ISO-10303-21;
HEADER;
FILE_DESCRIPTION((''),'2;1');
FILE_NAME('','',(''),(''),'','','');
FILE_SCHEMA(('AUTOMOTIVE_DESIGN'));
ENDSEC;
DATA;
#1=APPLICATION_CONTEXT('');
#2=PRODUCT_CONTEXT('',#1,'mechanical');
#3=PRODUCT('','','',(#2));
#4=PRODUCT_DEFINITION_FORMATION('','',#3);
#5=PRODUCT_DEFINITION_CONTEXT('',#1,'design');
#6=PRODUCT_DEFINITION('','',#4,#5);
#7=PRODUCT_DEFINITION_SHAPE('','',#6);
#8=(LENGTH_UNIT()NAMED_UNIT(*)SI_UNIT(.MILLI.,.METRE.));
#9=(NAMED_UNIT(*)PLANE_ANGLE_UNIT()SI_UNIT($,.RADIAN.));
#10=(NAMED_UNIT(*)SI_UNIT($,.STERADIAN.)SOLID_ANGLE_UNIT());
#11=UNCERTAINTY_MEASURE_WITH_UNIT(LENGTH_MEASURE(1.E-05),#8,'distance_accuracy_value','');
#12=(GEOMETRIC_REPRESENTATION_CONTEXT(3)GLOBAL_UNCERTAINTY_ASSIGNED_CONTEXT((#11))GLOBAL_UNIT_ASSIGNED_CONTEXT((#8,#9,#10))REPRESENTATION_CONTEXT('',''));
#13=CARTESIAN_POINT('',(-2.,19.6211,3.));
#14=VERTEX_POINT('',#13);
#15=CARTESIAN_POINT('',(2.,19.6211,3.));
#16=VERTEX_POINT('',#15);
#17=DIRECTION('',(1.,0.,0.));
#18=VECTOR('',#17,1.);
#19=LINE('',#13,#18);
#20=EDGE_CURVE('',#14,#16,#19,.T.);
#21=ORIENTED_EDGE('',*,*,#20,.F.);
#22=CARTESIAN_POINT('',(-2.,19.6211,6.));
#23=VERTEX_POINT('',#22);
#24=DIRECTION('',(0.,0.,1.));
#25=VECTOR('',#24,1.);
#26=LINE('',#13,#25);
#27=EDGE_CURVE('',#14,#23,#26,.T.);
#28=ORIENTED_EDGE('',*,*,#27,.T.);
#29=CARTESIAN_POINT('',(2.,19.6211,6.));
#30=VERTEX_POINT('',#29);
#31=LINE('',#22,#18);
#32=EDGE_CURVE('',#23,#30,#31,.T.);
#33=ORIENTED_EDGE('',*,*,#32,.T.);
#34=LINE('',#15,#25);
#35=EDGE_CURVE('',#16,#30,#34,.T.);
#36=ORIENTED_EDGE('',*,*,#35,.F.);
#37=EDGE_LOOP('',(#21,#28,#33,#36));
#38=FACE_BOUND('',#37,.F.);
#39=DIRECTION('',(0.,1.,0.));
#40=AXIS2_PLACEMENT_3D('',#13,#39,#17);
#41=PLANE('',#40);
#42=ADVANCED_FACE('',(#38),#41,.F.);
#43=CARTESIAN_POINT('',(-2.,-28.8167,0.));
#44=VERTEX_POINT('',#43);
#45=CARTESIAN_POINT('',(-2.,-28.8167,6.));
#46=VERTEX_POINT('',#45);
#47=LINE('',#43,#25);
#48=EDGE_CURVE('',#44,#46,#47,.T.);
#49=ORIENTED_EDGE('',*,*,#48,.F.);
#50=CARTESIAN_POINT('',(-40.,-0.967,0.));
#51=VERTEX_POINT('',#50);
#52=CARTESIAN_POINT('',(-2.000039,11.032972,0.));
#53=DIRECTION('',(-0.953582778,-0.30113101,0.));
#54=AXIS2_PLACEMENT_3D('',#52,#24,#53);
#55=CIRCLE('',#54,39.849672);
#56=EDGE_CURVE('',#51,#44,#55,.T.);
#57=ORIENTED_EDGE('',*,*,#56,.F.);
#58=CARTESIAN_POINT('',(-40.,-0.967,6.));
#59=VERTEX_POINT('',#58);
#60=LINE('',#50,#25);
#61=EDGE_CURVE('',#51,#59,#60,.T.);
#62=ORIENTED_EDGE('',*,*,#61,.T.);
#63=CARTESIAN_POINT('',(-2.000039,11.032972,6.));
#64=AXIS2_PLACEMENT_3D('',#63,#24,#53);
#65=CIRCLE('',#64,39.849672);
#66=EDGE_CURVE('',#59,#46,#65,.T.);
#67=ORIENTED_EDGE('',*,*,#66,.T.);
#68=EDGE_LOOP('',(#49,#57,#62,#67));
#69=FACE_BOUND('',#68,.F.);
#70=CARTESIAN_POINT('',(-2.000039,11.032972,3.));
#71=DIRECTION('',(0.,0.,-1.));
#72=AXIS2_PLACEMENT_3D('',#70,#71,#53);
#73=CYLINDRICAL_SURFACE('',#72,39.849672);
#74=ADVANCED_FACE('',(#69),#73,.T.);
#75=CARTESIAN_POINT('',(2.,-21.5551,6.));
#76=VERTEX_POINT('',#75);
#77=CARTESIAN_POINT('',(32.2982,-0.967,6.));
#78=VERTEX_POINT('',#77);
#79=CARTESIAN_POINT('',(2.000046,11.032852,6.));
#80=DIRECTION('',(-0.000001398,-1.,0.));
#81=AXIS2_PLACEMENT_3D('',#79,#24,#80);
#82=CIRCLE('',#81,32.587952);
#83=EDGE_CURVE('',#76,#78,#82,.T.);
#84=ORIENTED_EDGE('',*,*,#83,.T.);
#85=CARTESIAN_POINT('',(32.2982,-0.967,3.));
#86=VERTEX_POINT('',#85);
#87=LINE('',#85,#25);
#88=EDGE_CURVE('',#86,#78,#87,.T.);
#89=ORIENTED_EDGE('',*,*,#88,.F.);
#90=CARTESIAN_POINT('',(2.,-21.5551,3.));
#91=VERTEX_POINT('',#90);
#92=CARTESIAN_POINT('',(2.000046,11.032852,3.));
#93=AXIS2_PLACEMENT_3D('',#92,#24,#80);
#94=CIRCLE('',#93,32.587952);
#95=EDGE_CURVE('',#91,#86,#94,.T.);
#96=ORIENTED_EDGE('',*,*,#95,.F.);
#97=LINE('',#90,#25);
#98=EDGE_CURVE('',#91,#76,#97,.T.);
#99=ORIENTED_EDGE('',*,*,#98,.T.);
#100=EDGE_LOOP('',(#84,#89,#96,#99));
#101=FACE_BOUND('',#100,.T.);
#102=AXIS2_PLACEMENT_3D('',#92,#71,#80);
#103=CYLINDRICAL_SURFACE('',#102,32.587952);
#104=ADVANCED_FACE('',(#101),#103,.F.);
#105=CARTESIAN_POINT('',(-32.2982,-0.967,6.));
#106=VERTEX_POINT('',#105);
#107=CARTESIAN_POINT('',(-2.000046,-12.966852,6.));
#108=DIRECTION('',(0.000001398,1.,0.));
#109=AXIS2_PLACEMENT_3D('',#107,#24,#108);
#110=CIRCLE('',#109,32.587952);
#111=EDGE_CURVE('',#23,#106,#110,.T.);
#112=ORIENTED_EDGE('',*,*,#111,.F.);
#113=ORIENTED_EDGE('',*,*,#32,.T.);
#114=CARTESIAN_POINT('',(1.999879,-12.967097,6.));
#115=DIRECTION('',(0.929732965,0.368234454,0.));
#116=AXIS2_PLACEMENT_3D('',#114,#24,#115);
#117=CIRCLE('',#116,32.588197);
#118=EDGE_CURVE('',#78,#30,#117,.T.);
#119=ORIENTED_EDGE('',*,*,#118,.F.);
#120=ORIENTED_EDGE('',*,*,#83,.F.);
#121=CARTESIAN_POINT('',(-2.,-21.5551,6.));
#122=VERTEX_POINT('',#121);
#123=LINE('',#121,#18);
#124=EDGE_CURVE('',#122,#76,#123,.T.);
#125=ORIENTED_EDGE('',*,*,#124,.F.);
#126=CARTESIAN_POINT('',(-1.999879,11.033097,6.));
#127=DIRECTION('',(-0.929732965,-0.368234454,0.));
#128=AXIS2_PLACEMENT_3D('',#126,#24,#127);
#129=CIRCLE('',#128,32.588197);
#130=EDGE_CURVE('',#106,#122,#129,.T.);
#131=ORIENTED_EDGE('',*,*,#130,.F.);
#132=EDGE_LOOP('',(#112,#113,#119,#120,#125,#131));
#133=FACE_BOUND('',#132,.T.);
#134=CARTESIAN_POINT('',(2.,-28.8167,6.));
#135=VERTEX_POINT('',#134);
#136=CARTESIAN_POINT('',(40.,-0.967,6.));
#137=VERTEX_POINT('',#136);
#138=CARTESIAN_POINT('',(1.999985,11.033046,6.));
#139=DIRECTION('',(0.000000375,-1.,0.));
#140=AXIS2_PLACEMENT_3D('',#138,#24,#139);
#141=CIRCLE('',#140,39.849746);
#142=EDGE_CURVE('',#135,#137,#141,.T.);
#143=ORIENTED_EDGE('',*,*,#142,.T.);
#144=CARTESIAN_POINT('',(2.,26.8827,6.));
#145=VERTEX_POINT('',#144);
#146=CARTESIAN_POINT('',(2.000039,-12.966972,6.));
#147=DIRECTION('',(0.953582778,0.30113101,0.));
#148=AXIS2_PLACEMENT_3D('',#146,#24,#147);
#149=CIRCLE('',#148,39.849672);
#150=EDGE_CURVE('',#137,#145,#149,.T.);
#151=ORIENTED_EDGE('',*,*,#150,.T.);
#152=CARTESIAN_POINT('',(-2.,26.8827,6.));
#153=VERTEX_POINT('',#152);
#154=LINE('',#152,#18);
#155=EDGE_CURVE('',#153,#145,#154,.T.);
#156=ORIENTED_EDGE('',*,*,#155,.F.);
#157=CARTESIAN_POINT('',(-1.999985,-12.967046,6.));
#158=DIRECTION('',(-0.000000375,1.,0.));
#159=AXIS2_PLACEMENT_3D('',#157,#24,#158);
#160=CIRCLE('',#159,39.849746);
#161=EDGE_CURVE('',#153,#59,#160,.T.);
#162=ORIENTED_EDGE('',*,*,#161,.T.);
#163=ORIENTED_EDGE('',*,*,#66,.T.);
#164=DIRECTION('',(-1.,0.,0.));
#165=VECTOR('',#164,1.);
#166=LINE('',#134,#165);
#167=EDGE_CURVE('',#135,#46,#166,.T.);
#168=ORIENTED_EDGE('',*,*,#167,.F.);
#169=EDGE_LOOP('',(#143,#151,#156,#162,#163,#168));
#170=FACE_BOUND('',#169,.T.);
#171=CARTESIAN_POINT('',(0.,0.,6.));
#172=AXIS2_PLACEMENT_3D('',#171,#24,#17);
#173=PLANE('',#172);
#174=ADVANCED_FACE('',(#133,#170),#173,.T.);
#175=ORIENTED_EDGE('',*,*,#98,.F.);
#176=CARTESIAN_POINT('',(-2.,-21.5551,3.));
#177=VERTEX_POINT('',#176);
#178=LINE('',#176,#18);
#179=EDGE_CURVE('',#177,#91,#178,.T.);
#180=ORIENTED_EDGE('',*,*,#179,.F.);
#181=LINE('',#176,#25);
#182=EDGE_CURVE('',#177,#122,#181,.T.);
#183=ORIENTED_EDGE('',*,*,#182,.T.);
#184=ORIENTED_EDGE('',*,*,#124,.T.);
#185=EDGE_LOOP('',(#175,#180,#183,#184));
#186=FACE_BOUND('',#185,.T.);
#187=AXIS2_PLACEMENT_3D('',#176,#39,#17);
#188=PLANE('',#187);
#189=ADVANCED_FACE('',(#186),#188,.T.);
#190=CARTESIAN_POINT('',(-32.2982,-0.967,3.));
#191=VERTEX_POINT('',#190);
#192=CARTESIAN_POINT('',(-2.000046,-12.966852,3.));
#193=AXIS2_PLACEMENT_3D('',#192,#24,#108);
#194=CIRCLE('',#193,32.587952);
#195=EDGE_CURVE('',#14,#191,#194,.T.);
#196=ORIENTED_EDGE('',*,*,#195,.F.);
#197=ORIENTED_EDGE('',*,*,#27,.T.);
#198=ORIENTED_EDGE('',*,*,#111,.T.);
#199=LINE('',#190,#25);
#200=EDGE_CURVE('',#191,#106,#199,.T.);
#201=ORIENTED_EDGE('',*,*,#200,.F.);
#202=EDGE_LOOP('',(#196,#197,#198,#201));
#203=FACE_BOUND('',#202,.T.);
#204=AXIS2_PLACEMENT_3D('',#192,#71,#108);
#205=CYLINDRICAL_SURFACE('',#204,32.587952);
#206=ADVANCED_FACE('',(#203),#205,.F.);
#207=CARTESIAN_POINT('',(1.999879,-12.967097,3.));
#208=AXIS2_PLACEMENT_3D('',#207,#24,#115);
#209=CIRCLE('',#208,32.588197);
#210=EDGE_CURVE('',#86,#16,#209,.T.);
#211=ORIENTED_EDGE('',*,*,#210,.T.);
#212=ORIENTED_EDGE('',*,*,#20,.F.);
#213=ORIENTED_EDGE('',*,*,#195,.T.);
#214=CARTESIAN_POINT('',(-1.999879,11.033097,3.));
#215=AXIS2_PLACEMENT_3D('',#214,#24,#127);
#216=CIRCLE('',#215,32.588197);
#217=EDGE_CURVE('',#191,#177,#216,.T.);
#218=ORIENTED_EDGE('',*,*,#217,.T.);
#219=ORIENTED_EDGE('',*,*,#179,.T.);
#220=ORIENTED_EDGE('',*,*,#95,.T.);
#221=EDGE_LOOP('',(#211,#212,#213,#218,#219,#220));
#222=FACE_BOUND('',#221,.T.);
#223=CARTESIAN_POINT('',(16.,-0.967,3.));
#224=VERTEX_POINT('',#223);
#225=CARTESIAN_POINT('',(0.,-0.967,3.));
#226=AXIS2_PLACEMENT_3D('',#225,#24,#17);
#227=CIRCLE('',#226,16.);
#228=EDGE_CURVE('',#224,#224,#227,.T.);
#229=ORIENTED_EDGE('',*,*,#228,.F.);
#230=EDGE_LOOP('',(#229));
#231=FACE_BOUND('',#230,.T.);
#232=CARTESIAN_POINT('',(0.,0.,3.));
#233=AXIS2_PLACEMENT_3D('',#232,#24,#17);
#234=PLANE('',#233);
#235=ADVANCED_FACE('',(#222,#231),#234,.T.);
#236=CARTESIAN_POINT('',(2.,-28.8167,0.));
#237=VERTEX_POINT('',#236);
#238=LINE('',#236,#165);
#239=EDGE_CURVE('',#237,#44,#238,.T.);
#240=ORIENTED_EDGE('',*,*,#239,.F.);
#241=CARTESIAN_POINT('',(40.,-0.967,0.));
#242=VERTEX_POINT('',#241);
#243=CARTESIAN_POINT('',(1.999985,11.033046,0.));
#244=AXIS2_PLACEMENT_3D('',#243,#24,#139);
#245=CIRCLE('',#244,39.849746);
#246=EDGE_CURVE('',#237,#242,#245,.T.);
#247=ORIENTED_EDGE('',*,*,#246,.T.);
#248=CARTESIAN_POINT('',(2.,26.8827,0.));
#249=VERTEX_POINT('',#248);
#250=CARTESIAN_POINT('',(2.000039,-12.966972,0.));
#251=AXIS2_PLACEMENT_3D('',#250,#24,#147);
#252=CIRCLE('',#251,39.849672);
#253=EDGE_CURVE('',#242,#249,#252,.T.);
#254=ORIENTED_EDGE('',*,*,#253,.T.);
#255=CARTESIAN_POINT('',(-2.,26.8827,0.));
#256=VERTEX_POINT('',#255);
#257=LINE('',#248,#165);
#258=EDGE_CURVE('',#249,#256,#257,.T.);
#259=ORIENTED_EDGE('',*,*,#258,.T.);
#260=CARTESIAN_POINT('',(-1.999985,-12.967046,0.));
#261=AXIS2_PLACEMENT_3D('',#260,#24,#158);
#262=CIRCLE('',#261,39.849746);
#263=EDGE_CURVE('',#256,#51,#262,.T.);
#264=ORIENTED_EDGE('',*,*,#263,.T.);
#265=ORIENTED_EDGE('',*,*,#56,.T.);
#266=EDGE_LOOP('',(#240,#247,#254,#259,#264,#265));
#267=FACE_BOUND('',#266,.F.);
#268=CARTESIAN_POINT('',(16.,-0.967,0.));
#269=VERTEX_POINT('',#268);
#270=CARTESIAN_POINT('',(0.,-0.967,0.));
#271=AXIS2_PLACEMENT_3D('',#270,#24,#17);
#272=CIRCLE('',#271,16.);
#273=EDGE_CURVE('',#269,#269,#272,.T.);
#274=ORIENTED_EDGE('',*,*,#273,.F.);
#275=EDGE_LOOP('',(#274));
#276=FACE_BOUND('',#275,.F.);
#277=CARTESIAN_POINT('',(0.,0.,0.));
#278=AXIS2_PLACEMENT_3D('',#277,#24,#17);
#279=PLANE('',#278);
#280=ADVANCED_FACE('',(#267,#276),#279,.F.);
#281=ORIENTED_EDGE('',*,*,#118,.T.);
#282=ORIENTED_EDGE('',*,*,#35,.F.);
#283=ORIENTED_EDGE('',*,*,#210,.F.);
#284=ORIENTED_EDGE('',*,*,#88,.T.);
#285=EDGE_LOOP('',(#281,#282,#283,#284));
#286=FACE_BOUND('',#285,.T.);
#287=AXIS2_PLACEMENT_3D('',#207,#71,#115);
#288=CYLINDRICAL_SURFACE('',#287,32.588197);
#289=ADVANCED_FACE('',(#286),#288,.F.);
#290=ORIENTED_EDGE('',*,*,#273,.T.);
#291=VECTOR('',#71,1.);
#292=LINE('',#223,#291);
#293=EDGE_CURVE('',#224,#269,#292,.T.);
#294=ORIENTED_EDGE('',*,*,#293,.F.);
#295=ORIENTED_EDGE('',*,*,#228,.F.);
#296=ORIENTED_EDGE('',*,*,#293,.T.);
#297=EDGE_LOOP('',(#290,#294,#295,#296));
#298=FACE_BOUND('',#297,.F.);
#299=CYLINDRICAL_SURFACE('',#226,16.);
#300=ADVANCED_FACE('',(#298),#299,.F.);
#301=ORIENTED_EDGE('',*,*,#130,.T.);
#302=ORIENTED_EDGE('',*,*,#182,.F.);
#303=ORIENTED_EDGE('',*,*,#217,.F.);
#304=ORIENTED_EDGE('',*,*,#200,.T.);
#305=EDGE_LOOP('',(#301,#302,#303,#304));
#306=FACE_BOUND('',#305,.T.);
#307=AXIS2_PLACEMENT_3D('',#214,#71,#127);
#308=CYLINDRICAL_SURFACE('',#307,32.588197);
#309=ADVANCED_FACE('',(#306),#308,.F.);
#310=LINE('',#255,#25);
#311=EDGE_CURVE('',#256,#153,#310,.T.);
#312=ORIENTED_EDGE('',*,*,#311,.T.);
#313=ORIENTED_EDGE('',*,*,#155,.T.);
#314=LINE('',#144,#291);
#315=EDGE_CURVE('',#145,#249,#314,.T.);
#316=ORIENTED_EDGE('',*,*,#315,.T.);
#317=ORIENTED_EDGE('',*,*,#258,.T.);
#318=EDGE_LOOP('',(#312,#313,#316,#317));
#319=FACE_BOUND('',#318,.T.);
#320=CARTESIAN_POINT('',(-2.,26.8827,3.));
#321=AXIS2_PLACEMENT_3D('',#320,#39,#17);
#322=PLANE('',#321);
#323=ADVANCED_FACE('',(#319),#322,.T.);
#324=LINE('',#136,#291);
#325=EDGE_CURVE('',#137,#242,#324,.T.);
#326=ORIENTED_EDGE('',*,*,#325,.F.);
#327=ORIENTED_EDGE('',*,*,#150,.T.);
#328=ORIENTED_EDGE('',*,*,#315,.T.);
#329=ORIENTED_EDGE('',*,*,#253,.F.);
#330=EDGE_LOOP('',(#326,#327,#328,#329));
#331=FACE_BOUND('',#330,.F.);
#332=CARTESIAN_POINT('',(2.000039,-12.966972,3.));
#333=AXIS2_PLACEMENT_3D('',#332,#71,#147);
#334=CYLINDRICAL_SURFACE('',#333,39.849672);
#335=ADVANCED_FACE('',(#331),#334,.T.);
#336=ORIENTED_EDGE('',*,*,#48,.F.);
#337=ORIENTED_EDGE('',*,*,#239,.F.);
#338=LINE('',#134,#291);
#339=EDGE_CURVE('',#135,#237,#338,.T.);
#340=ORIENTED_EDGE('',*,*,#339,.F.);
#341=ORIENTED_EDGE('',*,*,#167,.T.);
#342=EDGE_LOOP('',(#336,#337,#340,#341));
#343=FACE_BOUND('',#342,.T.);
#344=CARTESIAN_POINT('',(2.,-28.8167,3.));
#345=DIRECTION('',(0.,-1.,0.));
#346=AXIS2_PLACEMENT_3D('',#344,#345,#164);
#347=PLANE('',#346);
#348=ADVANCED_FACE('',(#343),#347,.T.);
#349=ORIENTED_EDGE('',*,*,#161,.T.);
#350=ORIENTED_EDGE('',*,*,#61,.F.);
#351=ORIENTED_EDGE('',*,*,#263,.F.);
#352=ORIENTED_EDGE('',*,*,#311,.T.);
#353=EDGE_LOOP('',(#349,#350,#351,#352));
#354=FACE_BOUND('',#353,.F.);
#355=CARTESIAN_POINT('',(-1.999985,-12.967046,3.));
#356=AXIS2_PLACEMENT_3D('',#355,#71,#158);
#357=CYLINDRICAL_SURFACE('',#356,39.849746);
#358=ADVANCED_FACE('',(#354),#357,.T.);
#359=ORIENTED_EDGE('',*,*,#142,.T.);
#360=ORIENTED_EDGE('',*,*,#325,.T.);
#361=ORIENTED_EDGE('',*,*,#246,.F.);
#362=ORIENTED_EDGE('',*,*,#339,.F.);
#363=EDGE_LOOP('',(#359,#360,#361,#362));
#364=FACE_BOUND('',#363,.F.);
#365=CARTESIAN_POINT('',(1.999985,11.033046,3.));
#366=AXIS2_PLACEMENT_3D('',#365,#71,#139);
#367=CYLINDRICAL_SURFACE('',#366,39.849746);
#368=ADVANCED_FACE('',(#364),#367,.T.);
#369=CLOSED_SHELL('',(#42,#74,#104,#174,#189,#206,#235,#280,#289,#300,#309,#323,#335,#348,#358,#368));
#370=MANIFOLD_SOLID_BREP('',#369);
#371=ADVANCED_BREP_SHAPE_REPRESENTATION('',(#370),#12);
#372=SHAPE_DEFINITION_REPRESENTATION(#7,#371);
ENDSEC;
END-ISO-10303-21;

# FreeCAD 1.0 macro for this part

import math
import FreeCAD as App
import Part
import Sketcher

V = App.Vector
Q = App.Units.Quantity


def add_polygon(sketch, points):
    """Adds a closed chain of lines whose ends are joined by coincident constraints."""
    first, n = sketch.GeometryCount, len(points)
    for a, b in zip(points, points[1:] + points[:1]):
        sketch.addGeometry(Part.LineSegment(App.Vector(*a, 0), App.Vector(*b, 0)), False)
    for i in range(n):
        sketch.addConstraint(Sketcher.Constraint("Coincident", first + i, 2, first + (i + 1) % n, 1))

doc = App.newDocument("Part")
body = doc.addObject("PartDesign::Body", "Body")

# Sketch on XY plane
sketch1 = doc.addObject("Sketcher::SketchObject", "Sketch")
body.addObject(sketch1)
sketch1.AttachmentSupport = (doc.XY_Plane, [""])
sketch1.MapMode = "FlatFace"
add_polygon(sketch1, [(40, 40), (-40, 40), (-40, -40), (40, -40)])  # lines 0-3
sketch1.addConstraint([
    Sketcher.Constraint("Horizontal", 0),
    Sketcher.Constraint("Vertical", 1),
    Sketcher.Constraint("Horizontal", 2),
    Sketcher.Constraint("Vertical", 3),
    Sketcher.Constraint("Symmetric", 0, 2, 2, 2, -1, 1),
    Sketcher.Constraint("Equal", 2, 1),
    Sketcher.Constraint("DistanceX", 0, 2, 0, 1, Q("80 mm")),
])
pad1 = doc.addObject("PartDesign::Pad", "Pad")
body.addObject(pad1)
pad1.Profile = sketch1
pad1.Length = 3

# Sketch on XY plane
sketch2 = doc.addObject("Sketcher::SketchObject", "Sketch001")
body.addObject(sketch2)
sketch2.AttachmentSupport = (doc.XY_Plane, [""])
sketch2.MapMode = "FlatFace"
sketch2.AttachmentOffset = App.Placement(V(0, 0, 3), App.Rotation())
sketch2.addGeometry([
    Part.ArcOfCircle(Part.Circle(V(-2, -13, 0), V(0, 0, 1), 39.8), math.radians(90), math.radians(162)),  # 0
    Part.LineSegment(V(-2, 26.9, 0), V(2, 26.9, 0)),  # 1
    Part.ArcOfCircle(Part.Circle(V(2, -13, 0), V(0, 0, 1), 39.8), math.radians(18), math.radians(90)),  # 2
    Part.LineSegment(V(40, -1, 0), V(40, 40, 0)),  # 3
    Part.LineSegment(V(40, 40, 0), V(-40, 40, 0)),  # 4
    Part.LineSegment(V(-40, 40, 0), V(-40, -1, 0)),  # 5
    Part.ArcOfCircle(Part.Circle(V(-2, 11, 0), V(0, 0, 1), 39.8), math.radians(-162), math.radians(-90)),  # 6
    Part.LineSegment(V(-40, -1, 0), V(-40, -40, 0)),  # 7
    Part.LineSegment(V(-40, -40, 0), V(40, -40, 0)),  # 8
    Part.LineSegment(V(40, -40, 0), V(40, -1, 0)),  # 9
    Part.ArcOfCircle(Part.Circle(V(2, 11, 0), V(0, 0, 1), 39.8), math.radians(-90), math.radians(-18)),  # 10
    Part.LineSegment(V(2, -28.8, 0), V(-2, -28.8, 0)),  # 11
], False)
sketch2.addConstraint([
    Sketcher.Constraint("Tangent", 0, 1, 1, 1),
    Sketcher.Constraint("Tangent", 1, 2, 2, 2),
    Sketcher.Constraint("Coincident", 2, 1, 3, 1),
    Sketcher.Constraint("Coincident", 3, 2, 4, 1),
    Sketcher.Constraint("Coincident", 4, 2, 5, 1),
    Sketcher.Constraint("Coincident", 5, 2, 0, 2),
    Sketcher.Constraint("Coincident", 6, 1, 7, 1),
    Sketcher.Constraint("Coincident", 7, 2, 8, 1),
    Sketcher.Constraint("Coincident", 8, 2, 9, 1),
    Sketcher.Constraint("Coincident", 9, 2, 10, 2),
    Sketcher.Constraint("Tangent", 10, 1, 11, 1),
    Sketcher.Constraint("Tangent", 11, 2, 6, 2),
    Sketcher.Constraint("Horizontal", 1),
    Sketcher.Constraint("Vertical", 3),
    Sketcher.Constraint("Horizontal", 4),
    Sketcher.Constraint("Vertical", 5),
    Sketcher.Constraint("Vertical", 7),
    Sketcher.Constraint("Horizontal", 8),
    Sketcher.Constraint("Vertical", 9),
    Sketcher.Constraint("Horizontal", 11),
    Sketcher.Constraint("Coincident", 6, 1, 5, 2),
    Sketcher.Constraint("Coincident", 9, 2, 2, 1),
    Sketcher.Constraint("Equal", 0, 2),
    Sketcher.Constraint("Equal", 2, 6),
    Sketcher.Constraint("Equal", 6, 10),
    Sketcher.Constraint("Symmetric", 3, 2, 7, 2, -1, 1),
    Sketcher.Constraint("Horizontal", 2, 1, 5, 2),
    Sketcher.Constraint("Vertical", 0, 3, 6, 3),
    Sketcher.Constraint("DistanceX", 1, 1, 1, 2, Q("4 mm")),
    Sketcher.Constraint("DistanceX", 4, 2, 4, 1, Q("80 mm")),
    Sketcher.Constraint("DistanceY", -1, 1, 3, 2, Q("40 mm")),
    Sketcher.Constraint("DistanceY", 0, 3, 6, 3, Q("24 mm")),
    Sketcher.Constraint("DistanceY", 3, 1, 3, 2, Q("40.967 mm")),
])
pocket1 = doc.addObject("PartDesign::Pocket", "Pocket")
body.addObject(pocket1)
pocket1.Profile = sketch2
pocket1.Length = 3

# Sketch on XY plane
sketch3 = doc.addObject("Sketcher::SketchObject", "Sketch002")
body.addObject(sketch3)
sketch3.AttachmentSupport = (doc.XY_Plane, [""])
sketch3.MapMode = "FlatFace"
sketch3.AttachmentOffset = App.Placement(V(0, 0, 3), App.Rotation())
sketch3.addGeometry(Part.Circle(V(0, -1, 0), V(0, 0, 1), 16), False)
sketch3.addConstraint([
    Sketcher.Constraint("PointOnObject", 0, 3, -2),
    Sketcher.Constraint("Diameter", 0, Q("32 mm")),
    Sketcher.Constraint("DistanceY", 0, 3, -1, 1, Q("0.967 mm")),
])
pocket2 = doc.addObject("PartDesign::Pocket", "Pocket001")
body.addObject(pocket2)
pocket2.Profile = sketch3
pocket2.Length = 3

# Sketch on XY plane
sketch4 = doc.addObject("Sketcher::SketchObject", "Sketch003")
body.addObject(sketch4)
sketch4.AttachmentSupport = (doc.XY_Plane, [""])
sketch4.MapMode = "FlatFace"
sketch4.AttachmentOffset = App.Placement(V(0, 0, 3), App.Rotation())
sketch4.addGeometry([
    Part.LineSegment(V(2, 26.9, 0), V(-2, 26.9, 0)),  # 0
    Part.ArcOfCircle(Part.Circle(V(-2, -13, 0), V(0, 0, 1), 39.8), math.radians(90), math.radians(162)),  # 1
    Part.ArcOfCircle(Part.Circle(V(-2, 11, 0), V(0, 0, 1), 39.8), math.radians(-162), math.radians(-90)),  # 2
    Part.LineSegment(V(-2, -28.8, 0), V(2, -28.8, 0)),  # 3
    Part.ArcOfCircle(Part.Circle(V(2, 11, 0), V(0, 0, 1), 39.8), math.radians(-90), math.radians(-18)),  # 4
    Part.ArcOfCircle(Part.Circle(V(2, -13, 0), V(0, 0, 1), 39.8), math.radians(18), math.radians(90)),  # 5
    Part.ArcOfCircle(Part.Circle(V(-2, -13, 0), V(0, 0, 1), 32.6), math.radians(90), math.radians(158)),  # 6
    Part.LineSegment(V(-2, 19.6, 0), V(2, 19.6, 0)),  # 7
    Part.ArcOfCircle(Part.Circle(V(2, -13, 0), V(0, 0, 1), 32.6), math.radians(22), math.radians(90)),  # 8
    Part.ArcOfCircle(Part.Circle(V(2, 11, 0), V(0, 0, 1), 32.6), math.radians(-90), math.radians(-22)),  # 9
    Part.LineSegment(V(2, -21.6, 0), V(-2, -21.6, 0)),  # 10
    Part.ArcOfCircle(Part.Circle(V(-2, 11, 0), V(0, 0, 1), 32.6), math.radians(-158), math.radians(-90)),  # 11
], False)
sketch4.addConstraint([
    Sketcher.Constraint("Tangent", 0, 2, 1, 1),
    Sketcher.Constraint("Coincident", 1, 2, 2, 1),
    Sketcher.Constraint("Tangent", 2, 2, 3, 1),
    Sketcher.Constraint("Tangent", 3, 2, 4, 1),
    Sketcher.Constraint("Coincident", 4, 2, 5, 1),
    Sketcher.Constraint("Tangent", 5, 2, 0, 1),
    Sketcher.Constraint("Tangent", 6, 1, 7, 1),
    Sketcher.Constraint("Tangent", 7, 2, 8, 2),
    Sketcher.Constraint("Coincident", 8, 1, 9, 2),
    Sketcher.Constraint("Tangent", 9, 1, 10, 1),
    Sketcher.Constraint("Tangent", 10, 2, 11, 2),
    Sketcher.Constraint("Coincident", 11, 1, 6, 2),
    Sketcher.Constraint("Horizontal", 0),
    Sketcher.Constraint("Horizontal", 3),
    Sketcher.Constraint("Horizontal", 7),
    Sketcher.Constraint("Horizontal", 10),
    Sketcher.Constraint("Coincident", 6, 3, 1, 3),
    Sketcher.Constraint("Coincident", 8, 3, 5, 3),
    Sketcher.Constraint("Coincident", 9, 3, 4, 3),
    Sketcher.Constraint("Coincident", 11, 3, 2, 3),
    Sketcher.Constraint("Equal", 1, 2),
    Sketcher.Constraint("Equal", 2, 4),
    Sketcher.Constraint("Equal", 4, 5),
    Sketcher.Constraint("Equal", 8, 9),
    Sketcher.Constraint("Symmetric", 1, 2, 4, 2, -2),
    Sketcher.Constraint("Horizontal", 4, 2, 8, 1),
    Sketcher.Constraint("DistanceX", 0, 2, 0, 1, Q("4 mm")),
    Sketcher.Constraint("DistanceX", 1, 2, -1, 1, Q("40 mm")),
    Sketcher.Constraint("Radius", 6, Q("32.588 mm")),
    Sketcher.Constraint("DistanceY", 1, 3, 2, 3, Q("24 mm")),
    Sketcher.Constraint("DistanceY", 1, 3, -1, 1, Q("12.967 mm")),
])
pad2 = doc.addObject("PartDesign::Pad", "Pad001")
body.addObject(pad2)
pad2.Profile = sketch4
pad2.Length = 3

doc.recompute()
